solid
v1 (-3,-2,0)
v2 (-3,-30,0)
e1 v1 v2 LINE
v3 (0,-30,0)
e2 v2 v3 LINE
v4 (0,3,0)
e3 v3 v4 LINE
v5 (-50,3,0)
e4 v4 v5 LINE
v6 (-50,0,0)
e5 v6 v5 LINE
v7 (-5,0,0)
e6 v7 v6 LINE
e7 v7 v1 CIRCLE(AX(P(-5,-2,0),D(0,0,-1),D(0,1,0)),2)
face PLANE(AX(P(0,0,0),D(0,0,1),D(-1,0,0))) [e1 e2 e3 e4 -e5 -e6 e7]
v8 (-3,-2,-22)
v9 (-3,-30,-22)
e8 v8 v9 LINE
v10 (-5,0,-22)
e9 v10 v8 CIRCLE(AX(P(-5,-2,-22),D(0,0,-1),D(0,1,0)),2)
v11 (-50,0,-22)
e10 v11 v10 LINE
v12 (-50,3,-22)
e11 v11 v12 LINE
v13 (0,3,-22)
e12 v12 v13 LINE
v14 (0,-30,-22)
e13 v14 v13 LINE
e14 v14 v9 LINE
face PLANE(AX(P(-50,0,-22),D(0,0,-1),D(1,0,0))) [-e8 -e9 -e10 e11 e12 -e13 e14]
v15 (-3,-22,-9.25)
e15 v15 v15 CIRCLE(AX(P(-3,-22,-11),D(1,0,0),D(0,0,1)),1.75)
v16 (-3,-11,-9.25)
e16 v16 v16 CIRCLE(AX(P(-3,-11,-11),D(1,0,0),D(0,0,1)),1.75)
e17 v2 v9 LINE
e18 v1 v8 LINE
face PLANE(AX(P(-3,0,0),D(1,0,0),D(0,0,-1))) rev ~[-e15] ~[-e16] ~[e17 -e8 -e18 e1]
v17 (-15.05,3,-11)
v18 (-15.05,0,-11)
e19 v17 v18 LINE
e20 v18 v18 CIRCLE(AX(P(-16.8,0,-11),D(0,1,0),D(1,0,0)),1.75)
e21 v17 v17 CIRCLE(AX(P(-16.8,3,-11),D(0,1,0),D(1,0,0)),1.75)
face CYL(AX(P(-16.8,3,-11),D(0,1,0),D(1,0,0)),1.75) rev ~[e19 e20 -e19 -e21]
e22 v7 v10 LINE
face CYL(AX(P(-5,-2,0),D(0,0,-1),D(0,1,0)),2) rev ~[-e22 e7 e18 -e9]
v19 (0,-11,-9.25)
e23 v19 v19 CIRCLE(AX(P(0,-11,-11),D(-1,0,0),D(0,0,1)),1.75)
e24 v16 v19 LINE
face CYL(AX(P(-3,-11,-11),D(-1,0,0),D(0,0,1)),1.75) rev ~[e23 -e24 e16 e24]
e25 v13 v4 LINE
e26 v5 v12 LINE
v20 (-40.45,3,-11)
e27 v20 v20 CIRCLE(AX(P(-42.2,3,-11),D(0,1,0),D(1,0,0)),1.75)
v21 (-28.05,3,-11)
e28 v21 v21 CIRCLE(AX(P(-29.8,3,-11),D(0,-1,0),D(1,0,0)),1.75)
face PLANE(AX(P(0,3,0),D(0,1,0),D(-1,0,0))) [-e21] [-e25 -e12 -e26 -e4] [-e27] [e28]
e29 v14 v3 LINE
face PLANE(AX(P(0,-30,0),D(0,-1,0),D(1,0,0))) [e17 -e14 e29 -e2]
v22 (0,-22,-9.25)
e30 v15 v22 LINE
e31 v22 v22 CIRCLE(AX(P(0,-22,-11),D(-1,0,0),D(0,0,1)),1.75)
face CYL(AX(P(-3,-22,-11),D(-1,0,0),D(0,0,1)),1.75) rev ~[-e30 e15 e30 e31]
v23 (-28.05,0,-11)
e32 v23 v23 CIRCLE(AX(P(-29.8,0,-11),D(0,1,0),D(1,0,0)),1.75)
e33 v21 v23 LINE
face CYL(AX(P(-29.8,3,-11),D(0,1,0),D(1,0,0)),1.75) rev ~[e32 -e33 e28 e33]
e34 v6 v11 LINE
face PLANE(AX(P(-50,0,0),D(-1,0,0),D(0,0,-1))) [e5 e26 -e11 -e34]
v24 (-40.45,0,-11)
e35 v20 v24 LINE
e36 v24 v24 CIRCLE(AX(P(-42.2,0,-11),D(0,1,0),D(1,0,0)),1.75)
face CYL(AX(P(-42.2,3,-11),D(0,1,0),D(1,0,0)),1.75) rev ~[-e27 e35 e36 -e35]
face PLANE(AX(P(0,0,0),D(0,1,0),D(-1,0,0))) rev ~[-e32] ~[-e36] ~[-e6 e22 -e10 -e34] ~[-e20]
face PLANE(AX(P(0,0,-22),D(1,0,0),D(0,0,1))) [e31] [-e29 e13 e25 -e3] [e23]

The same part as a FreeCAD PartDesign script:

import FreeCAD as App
import Part
import Sketcher

V = App.Vector


def edges_at(feature, points):
    """Names of the edges that pass closest to the given points."""
    edges = feature.Shape.Edges
    near = lambda p: min(range(len(edges)), key=lambda i: edges[i].distToShape(Part.Vertex(*p))[0])
    return sorted({f"Edge{near(p) + 1}" for p in points})


def add_polygon(sketch, points):
    """Adds a closed chain of lines whose ends are joined by coincident constraints."""
    first, n = sketch.GeometryCount, len(points)
    for a, b in zip(points, points[1:] + points[:1]):
        sketch.addGeometry(Part.LineSegment(App.Vector(*a, 0), App.Vector(*b, 0)), False)
    for i in range(n):
        sketch.addConstraint(Sketcher.Constraint("Coincident", first + i, 2, first + (i + 1) % n, 1))

doc = App.newDocument("Part")
body = doc.addObject("PartDesign::Body", "Body")

sketch1 = doc.addObject("Sketcher::SketchObject", "Sketch")
body.addObject(sketch1)
sketch1.AttachmentSupport = (doc.XZ_Plane, [""])
sketch1.MapMode = "FlatFace"
add_polygon(sketch1, [(-50, 0), (0, 0), (0, -22), (-50, -22)])
sketch1.addConstraint([
    Sketcher.Constraint("Horizontal", 0),
    Sketcher.Constraint("Vertical", 1),
    Sketcher.Constraint("Horizontal", 2),
    Sketcher.Constraint("Vertical", 3),
    Sketcher.Constraint("Coincident", 0, 2, -1, 1),
    Sketcher.Constraint("DistanceX", 0, 1, 0, 2, 50.0),
    Sketcher.Constraint("DistanceY", 1, 2, 1, 1, 22.0),
])
pad1 = doc.addObject("PartDesign::Pad", "Pad")
body.addObject(pad1)
pad1.Profile = sketch1
pad1.Length = 3
pad1.Reversed = True

sketch2 = doc.addObject("Sketcher::SketchObject", "Sketch001")
body.addObject(sketch2)
sketch2.AttachmentSupport = (doc.XZ_Plane, [""])
sketch2.MapMode = "FlatFace"
add_polygon(sketch2, [(0, 0), (-3, 0), (-3, -22), (0, -22)])
sketch2.addConstraint([
    Sketcher.Constraint("Horizontal", 0),
    Sketcher.Constraint("Vertical", 1),
    Sketcher.Constraint("Horizontal", 2),
    Sketcher.Constraint("Vertical", 3),
    Sketcher.Constraint("Coincident", 3, 2, -1, 1),
    Sketcher.Constraint("DistanceX", 0, 2, 0, 1, 3.0),
    Sketcher.Constraint("DistanceY", 1, 2, 1, 1, 22.0),
])
pad2 = doc.addObject("PartDesign::Pad", "Pad001")
body.addObject(pad2)
pad2.Profile = sketch2
pad2.Length = 30

sketch3 = doc.addObject("Sketcher::SketchObject", "Sketch002")
body.addObject(sketch3)
sketch3.AttachmentSupport = (doc.YZ_Plane, [""])
sketch3.MapMode = "FlatFace"
sketch3.AttachmentOffset = App.Placement(V(0, 0, -3), App.Rotation())
sketch3.addGeometry([
    Part.Circle(V(-11, -11, 0), V(0, 0, 1), 1.8),
    Part.Circle(V(-22, -11, 0), V(0, 0, 1), 1.8),
], False)
sketch3.addConstraint([
    Sketcher.Constraint("Equal", 0, 1),
    Sketcher.Constraint("Horizontal", 0, 3, 1, 3),
    Sketcher.Constraint("Diameter", 0, 3.5),
    Sketcher.Constraint("DistanceX", 0, 3, -1, 1, 11.0),
    Sketcher.Constraint("DistanceY", 0, 3, -1, 1, 11.0),
    Sketcher.Constraint("DistanceX", 1, 3, 0, 3, 11.0),
])
pocket1 = doc.addObject("PartDesign::Pocket", "Pocket")
body.addObject(pocket1)
pocket1.Profile = sketch3
pocket1.Length = 3
pocket1.Reversed = True
doc.recompute()

fillet = doc.addObject("PartDesign::Fillet", "Fillet")
body.addObject(fillet)
fillet.Base = (pocket1, edges_at(pocket1, [(-3, 0, -11)]))
fillet.Radius = 2

sketch4 = doc.addObject("Sketcher::SketchObject", "Sketch003")
body.addObject(sketch4)
sketch4.AttachmentSupport = (doc.XZ_Plane, [""])
sketch4.MapMode = "FlatFace"
sketch4.AttachmentOffset = App.Placement(V(0, 0, -3), App.Rotation())
sketch4.addGeometry([
    Part.Circle(V(-16.8, -11, 0), V(0, 0, 1), 1.8),
    Part.Circle(V(-42.2, -11, 0), V(0, 0, 1), 1.8),
    Part.Circle(V(-29.8, -11, 0), V(0, 0, 1), 1.8),
], False)
sketch4.addConstraint([
    Sketcher.Constraint("Equal", 0, 1),
    Sketcher.Constraint("Equal", 1, 2),
    Sketcher.Constraint("Horizontal", 0, 3, 1, 3),
    Sketcher.Constraint("Horizontal", 1, 3, 2, 3),
    Sketcher.Constraint("Diameter", 0, 3.5),
    Sketcher.Constraint("DistanceY", 0, 3, -1, 1, 11.0),
    Sketcher.Constraint("DistanceX", 1, 3, 0, 3, 25.4),
    Sketcher.Constraint("DistanceX", 2, 3, 0, 3, 13.0),
    Sketcher.Constraint("DistanceX", 0, 3, -1, 1, 16.8),
])
pocket2 = doc.addObject("PartDesign::Pocket", "Pocket001")
body.addObject(pocket2)
pocket2.Profile = sketch4
pocket2.Length = 3
pocket2.Reversed = True

doc.recompute()
